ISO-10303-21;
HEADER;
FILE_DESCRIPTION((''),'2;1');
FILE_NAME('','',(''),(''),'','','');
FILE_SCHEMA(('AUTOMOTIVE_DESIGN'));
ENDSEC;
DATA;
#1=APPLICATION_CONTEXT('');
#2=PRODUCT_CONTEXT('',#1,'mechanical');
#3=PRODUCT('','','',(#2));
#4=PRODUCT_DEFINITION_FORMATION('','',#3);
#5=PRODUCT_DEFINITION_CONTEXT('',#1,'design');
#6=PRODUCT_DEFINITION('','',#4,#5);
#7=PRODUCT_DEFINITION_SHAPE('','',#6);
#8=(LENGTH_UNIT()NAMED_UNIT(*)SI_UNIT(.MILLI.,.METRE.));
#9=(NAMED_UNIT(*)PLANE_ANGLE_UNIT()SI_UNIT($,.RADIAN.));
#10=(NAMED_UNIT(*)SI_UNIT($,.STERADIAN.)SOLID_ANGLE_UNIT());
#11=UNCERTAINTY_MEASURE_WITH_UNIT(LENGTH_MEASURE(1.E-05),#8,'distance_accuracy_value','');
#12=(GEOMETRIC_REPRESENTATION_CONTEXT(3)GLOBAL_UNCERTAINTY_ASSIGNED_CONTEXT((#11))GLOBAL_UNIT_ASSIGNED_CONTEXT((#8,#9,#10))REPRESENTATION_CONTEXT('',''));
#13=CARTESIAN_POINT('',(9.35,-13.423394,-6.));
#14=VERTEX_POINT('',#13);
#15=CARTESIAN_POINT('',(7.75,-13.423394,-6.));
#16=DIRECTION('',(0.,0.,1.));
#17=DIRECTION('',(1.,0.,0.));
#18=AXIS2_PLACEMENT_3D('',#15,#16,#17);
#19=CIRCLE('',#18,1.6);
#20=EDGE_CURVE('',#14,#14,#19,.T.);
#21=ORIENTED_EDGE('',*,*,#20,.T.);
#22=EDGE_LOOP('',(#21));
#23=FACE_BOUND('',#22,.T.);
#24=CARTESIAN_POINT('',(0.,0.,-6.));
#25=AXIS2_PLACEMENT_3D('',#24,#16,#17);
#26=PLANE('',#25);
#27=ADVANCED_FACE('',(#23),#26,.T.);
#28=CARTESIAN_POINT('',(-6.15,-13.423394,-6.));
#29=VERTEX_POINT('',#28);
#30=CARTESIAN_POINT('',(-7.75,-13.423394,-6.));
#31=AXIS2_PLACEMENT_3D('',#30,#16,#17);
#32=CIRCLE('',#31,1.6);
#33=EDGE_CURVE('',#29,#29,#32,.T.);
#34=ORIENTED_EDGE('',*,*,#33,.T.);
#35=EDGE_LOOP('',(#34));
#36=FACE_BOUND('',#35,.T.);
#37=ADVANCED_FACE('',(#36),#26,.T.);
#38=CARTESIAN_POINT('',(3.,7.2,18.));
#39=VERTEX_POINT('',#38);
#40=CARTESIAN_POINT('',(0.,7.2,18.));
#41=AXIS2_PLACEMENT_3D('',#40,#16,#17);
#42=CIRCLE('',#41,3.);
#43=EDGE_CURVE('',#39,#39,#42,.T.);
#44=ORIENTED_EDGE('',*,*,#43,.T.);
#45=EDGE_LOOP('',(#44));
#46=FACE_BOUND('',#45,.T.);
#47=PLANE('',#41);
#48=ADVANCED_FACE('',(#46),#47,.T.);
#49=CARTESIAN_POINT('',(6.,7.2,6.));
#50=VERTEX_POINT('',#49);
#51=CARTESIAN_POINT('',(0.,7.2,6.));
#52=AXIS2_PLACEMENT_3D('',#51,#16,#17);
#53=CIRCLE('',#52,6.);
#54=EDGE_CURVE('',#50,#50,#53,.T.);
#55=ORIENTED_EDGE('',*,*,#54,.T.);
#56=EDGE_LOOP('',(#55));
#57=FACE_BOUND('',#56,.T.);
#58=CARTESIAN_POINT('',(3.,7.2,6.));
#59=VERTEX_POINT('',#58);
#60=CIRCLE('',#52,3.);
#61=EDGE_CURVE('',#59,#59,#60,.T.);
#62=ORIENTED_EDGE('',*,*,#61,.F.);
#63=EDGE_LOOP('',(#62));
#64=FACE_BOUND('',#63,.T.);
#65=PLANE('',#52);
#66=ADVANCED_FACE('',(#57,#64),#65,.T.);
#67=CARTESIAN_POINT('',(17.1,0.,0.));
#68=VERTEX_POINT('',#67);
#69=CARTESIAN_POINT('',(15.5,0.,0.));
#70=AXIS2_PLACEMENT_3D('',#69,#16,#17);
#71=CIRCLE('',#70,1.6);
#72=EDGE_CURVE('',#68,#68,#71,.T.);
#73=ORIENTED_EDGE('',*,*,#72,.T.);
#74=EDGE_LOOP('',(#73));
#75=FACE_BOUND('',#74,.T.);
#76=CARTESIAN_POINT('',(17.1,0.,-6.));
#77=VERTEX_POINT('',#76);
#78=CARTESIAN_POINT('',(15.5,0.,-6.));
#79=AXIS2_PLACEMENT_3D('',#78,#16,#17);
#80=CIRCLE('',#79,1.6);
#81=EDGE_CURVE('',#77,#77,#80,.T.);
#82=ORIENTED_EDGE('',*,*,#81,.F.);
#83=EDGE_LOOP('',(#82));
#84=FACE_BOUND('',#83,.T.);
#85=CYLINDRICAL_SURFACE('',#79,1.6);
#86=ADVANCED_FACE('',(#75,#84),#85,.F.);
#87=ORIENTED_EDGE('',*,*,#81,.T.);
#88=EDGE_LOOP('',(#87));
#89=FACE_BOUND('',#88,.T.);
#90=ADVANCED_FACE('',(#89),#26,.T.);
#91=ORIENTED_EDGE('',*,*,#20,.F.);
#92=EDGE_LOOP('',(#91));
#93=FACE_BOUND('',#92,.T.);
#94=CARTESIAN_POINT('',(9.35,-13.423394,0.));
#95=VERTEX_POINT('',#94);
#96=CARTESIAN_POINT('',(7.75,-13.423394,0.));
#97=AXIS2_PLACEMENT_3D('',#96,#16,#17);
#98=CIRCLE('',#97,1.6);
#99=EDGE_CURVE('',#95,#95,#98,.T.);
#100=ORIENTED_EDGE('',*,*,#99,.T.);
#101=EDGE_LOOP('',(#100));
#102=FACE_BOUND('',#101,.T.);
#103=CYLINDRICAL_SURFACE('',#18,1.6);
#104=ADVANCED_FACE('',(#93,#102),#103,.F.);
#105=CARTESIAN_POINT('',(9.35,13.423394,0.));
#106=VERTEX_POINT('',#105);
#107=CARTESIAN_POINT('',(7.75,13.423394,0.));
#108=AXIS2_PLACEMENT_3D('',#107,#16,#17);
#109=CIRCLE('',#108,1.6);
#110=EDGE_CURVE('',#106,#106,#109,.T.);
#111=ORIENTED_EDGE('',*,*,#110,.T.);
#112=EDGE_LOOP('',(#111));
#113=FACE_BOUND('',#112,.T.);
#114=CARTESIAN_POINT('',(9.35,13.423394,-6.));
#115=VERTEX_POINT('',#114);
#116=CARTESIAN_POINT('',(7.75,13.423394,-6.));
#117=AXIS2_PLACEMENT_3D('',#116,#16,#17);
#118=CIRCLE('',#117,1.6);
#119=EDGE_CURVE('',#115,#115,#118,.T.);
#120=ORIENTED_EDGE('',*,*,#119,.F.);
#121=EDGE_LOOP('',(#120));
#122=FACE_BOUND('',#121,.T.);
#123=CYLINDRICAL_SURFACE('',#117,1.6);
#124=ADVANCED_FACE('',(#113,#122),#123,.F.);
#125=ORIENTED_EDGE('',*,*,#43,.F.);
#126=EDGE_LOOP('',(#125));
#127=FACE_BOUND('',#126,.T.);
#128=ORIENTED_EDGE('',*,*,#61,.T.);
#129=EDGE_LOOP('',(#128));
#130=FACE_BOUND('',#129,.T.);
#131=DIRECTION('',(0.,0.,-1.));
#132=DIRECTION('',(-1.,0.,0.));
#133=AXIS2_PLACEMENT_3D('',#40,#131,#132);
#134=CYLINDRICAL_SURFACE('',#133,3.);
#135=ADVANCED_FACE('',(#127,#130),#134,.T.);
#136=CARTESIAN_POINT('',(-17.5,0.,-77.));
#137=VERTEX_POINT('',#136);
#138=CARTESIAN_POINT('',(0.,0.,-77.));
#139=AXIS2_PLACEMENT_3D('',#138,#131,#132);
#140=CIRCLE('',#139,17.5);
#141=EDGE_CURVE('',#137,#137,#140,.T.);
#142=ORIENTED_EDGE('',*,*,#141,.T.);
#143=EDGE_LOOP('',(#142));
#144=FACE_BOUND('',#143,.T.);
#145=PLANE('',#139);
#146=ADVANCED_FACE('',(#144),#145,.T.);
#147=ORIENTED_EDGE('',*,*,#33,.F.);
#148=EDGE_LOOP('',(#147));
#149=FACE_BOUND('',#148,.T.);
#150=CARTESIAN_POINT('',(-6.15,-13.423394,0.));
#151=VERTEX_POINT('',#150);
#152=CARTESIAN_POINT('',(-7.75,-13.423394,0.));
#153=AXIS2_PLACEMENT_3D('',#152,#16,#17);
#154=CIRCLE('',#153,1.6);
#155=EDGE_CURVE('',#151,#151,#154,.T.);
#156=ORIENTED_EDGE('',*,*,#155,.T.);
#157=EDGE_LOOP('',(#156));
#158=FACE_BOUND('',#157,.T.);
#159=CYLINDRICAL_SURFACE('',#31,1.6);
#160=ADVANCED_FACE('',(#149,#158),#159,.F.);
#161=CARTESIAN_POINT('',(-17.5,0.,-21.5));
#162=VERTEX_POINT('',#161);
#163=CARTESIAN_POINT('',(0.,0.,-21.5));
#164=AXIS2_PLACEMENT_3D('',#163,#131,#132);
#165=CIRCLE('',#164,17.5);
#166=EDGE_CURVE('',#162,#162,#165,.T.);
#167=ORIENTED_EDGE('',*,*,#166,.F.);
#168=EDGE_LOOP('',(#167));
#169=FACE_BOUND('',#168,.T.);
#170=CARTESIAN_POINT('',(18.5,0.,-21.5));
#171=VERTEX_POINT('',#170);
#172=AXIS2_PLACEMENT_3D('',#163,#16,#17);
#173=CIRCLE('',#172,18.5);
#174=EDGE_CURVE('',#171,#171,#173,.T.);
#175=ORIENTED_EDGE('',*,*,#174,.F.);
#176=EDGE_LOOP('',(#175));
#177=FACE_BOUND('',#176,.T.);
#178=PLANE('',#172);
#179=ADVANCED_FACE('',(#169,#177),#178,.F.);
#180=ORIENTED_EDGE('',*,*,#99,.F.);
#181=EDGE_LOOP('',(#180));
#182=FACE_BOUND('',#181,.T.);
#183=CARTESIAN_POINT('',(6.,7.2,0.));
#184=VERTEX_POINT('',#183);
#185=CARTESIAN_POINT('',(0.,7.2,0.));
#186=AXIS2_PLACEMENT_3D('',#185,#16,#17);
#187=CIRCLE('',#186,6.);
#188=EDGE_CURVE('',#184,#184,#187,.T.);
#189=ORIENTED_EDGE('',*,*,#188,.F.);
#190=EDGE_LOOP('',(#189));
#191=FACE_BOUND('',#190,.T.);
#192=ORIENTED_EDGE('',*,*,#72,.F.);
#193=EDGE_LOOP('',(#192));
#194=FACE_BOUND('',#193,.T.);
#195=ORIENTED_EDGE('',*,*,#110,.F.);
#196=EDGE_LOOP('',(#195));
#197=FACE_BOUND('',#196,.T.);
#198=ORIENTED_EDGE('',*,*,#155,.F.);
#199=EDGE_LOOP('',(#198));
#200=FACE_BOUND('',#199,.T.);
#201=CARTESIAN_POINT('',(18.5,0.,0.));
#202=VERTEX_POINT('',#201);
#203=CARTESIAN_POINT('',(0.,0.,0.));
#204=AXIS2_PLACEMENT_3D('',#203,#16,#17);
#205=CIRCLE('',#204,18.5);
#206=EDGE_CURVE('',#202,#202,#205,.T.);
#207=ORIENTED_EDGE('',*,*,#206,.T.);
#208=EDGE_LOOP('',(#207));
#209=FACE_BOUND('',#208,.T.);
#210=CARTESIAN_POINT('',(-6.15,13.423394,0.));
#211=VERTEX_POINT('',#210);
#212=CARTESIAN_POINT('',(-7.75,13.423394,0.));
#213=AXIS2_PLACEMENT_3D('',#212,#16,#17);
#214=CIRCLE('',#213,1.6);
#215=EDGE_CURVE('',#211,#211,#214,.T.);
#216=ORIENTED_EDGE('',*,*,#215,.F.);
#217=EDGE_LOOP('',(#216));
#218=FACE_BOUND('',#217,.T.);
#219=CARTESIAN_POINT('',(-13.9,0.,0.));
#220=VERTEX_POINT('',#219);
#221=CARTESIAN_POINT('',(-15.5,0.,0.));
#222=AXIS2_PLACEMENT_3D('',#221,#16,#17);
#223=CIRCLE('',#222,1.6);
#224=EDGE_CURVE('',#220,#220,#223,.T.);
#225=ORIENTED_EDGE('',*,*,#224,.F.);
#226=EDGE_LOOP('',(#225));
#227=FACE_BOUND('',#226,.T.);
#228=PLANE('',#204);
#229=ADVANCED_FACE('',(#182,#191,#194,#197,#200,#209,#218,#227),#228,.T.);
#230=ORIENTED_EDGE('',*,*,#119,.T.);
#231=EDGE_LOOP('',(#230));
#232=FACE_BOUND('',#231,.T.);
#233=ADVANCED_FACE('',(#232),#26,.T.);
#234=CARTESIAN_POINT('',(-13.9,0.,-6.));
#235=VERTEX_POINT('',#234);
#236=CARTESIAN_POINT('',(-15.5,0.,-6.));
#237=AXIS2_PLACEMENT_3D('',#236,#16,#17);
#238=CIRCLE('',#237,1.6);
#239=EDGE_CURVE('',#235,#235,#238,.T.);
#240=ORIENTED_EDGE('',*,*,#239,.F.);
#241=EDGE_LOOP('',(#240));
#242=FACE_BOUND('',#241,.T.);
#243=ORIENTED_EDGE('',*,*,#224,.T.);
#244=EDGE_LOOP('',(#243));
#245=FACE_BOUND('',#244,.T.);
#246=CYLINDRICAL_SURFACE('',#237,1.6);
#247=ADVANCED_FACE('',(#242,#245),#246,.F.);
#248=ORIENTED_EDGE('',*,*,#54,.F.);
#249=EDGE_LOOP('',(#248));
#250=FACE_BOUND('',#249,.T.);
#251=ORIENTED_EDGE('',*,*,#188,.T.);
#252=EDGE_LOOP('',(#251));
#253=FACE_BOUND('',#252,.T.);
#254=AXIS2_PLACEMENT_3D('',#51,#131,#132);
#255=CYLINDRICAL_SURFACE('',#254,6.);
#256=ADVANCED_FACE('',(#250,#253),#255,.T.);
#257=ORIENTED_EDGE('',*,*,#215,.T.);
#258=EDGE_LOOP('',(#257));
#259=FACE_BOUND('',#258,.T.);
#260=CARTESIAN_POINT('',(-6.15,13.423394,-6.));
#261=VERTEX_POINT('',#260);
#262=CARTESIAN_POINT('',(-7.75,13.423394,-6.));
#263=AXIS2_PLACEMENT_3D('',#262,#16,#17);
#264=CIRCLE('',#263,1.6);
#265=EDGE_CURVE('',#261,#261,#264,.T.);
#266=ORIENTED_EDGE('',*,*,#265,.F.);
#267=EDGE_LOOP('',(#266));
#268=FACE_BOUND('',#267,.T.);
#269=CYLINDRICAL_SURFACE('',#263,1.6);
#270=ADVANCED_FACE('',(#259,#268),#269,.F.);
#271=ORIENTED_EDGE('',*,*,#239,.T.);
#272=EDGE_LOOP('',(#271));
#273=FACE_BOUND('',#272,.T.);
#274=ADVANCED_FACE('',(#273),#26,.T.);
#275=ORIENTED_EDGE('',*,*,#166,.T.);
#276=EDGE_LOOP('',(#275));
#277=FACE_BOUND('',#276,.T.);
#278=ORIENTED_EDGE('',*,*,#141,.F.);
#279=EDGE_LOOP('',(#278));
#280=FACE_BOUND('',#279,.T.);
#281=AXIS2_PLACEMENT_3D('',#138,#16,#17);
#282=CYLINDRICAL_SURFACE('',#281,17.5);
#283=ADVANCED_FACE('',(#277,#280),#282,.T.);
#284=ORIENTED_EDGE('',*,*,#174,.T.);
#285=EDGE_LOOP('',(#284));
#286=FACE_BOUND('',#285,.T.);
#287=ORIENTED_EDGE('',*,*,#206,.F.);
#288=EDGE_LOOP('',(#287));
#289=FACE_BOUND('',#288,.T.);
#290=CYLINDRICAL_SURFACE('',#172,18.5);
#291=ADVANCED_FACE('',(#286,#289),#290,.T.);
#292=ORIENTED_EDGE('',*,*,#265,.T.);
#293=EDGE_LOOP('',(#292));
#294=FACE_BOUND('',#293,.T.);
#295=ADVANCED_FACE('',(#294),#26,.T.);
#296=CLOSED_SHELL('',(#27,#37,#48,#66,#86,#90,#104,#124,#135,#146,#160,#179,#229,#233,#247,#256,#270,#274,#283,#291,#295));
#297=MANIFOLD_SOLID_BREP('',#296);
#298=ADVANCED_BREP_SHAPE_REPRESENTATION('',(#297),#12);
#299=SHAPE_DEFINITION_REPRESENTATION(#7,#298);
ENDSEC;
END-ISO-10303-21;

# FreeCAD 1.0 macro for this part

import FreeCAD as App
import Part
import Sketcher

doc = App.newDocument("Part")
params = doc.addObject("Spreadsheet::Sheet", "Params")
for row, (alias, value) in enumerate([
    ("sketch1_diameter", "37 mm"),
    ("pad1_length", "21.5 mm"),
    ("sketch2_diameter", "35 mm"),
    ("pad2_length", "55.5 mm"),
    ("sketch3_diameter", "12 mm"),
    ("pad3_length", "6 mm"),
    ("sketch4_diameter", "6 mm"),
    ("pad4_length", "12 mm"),
    ("sketch5_diameter", "3.2 mm"),
    ("pocket1_length", "6 mm"),
], start=1):
    params.set(f"A{row}", alias)
    params.set(f"B{row}", "=" + value)
    params.setAlias(f"B{row}", alias)

body = doc.addObject("PartDesign::Body", "Body")

# Sketch on XY plane
sketch1 = body.newObject("Sketcher::SketchObject", "Sketch")
sketch1.AttachmentSupport = (doc.getObject("XY_Plane"), [""])
sketch1.MapMode = "FlatFace"
sketch1.addGeometry(Part.Circle(App.Vector(0, 0, 0), App.Vector(0, 0, 1), 18.5), False)
sketch1.addConstraint(Sketcher.Constraint("Coincident", 0, 3, -1, 1))
sketch1.addConstraint(Sketcher.Constraint("Diameter", 0, 37.0))
sketch1.setExpression("Constraints[1]", "Params.sketch1_diameter")
pad1 = body.newObject("PartDesign::Pad", "Pad")
pad1.Profile = sketch1
pad1.setExpression("Length", "Params.pad1_length")
pad1.Reversed = True

# Sketch on XY plane
sketch2 = body.newObject("Sketcher::SketchObject", "Sketch001")
sketch2.AttachmentSupport = (doc.getObject("XY_Plane"), [""])
sketch2.MapMode = "FlatFace"
sketch2.AttachmentOffset = App.Placement(App.Vector(0, 0, -21.5), App.Rotation())
sketch2.addGeometry(Part.Circle(App.Vector(0, 0, 0), App.Vector(0, 0, 1), 17.5), False)
sketch2.addConstraint(Sketcher.Constraint("Coincident", 0, 3, -1, 1))
sketch2.addConstraint(Sketcher.Constraint("Diameter", 0, 35.0))
sketch2.setExpression("Constraints[1]", "Params.sketch2_diameter")
pad2 = body.newObject("PartDesign::Pad", "Pad001")
pad2.Profile = sketch2
pad2.setExpression("Length", "Params.pad2_length")
pad2.Reversed = True

# Sketch on XY plane
sketch3 = body.newObject("Sketcher::SketchObject", "Sketch002")
sketch3.AttachmentSupport = (doc.getObject("XY_Plane"), [""])
sketch3.MapMode = "FlatFace"
sketch3.addGeometry(Part.Circle(App.Vector(0, 7.2, 0), App.Vector(0, 0, 1), 6), False)
sketch3.addConstraint(Sketcher.Constraint("PointOnObject", 0, 3, -2))
sketch3.addConstraint(Sketcher.Constraint("Diameter", 0, 12.0))
sketch3.addConstraint(Sketcher.Constraint("DistanceY", -1, 1, 0, 3, 7.2))
sketch3.setExpression("Constraints[1]", "Params.sketch3_diameter")
pad3 = body.newObject("PartDesign::Pad", "Pad002")
pad3.Profile = sketch3
pad3.setExpression("Length", "Params.pad3_length")

# Sketch on XY plane
sketch4 = body.newObject("Sketcher::SketchObject", "Sketch003")
sketch4.AttachmentSupport = (doc.getObject("XY_Plane"), [""])
sketch4.MapMode = "FlatFace"
sketch4.AttachmentOffset = App.Placement(App.Vector(0, 0, 6), App.Rotation())
sketch4.addGeometry(Part.Circle(App.Vector(0, 7.2, 0), App.Vector(0, 0, 1), 3), False)
sketch4.addConstraint(Sketcher.Constraint("PointOnObject", 0, 3, -2))
sketch4.addConstraint(Sketcher.Constraint("Diameter", 0, 6.0))
sketch4.addConstraint(Sketcher.Constraint("DistanceY", -1, 1, 0, 3, 7.2))
sketch4.setExpression("Constraints[1]", "Params.sketch4_diameter")
pad4 = body.newObject("PartDesign::Pad", "Pad003")
pad4.Profile = sketch4
pad4.setExpression("Length", "Params.pad4_length")

# Sketch on XY plane
sketch5 = body.newObject("Sketcher::SketchObject", "Sketch004")
sketch5.AttachmentSupport = (doc.getObject("XY_Plane"), [""])
sketch5.MapMode = "FlatFace"
sketch5.addGeometry(Part.Circle(App.Vector(-7.75, 13.423394, 0), App.Vector(0, 0, 1), 1.6), False)
sketch5.addGeometry(Part.Circle(App.Vector(7.75, 13.423394, 0), App.Vector(0, 0, 1), 1.6), False)
sketch5.addGeometry(Part.Circle(App.Vector(15.5, 0, 0), App.Vector(0, 0, 1), 1.6), False)
sketch5.addGeometry(Part.Circle(App.Vector(7.75, -13.423394, 0), App.Vector(0, 0, 1), 1.6), False)
sketch5.addGeometry(Part.Circle(App.Vector(-7.75, -13.423394, 0), App.Vector(0, 0, 1), 1.6), False)
sketch5.addGeometry(Part.Circle(App.Vector(-15.5, 0, 0), App.Vector(0, 0, 1), 1.6), False)
sketch5.addConstraint(Sketcher.Constraint("Equal", 0, 1))
sketch5.addConstraint(Sketcher.Constraint("Equal", 1, 2))
sketch5.addConstraint(Sketcher.Constraint("Equal", 2, 3))
sketch5.addConstraint(Sketcher.Constraint("Equal", 3, 4))
sketch5.addConstraint(Sketcher.Constraint("Equal", 4, 5))
sketch5.addConstraint(Sketcher.Constraint("Symmetric", 0, 3, 3, 3, -1, 1))
sketch5.addConstraint(Sketcher.Constraint("Symmetric", 1, 3, 4, 3, -1, 1))
sketch5.addConstraint(Sketcher.Constraint("Symmetric", 2, 3, 5, 3, -1, 1))
sketch5.addConstraint(Sketcher.Constraint("Symmetric", 0, 3, 1, 3, -2))
sketch5.addConstraint(Sketcher.Constraint("PointOnObject", 2, 3, -1))
sketch5.addConstraint(Sketcher.Constraint("Diameter", 0, 3.2))
sketch5.addConstraint(Sketcher.Constraint("DistanceX", 5, 3, 2, 3, 31.0))
sketch5.addConstraint(Sketcher.Constraint("DistanceX", 0, 3, 1, 3, 15.5))
sketch5.addConstraint(Sketcher.Constraint("DistanceY", -1, 1, 0, 3, 13.423394))
sketch5.setExpression("Constraints[10]", "Params.sketch5_diameter")
pocket1 = body.newObject("PartDesign::Pocket", "Pocket")
pocket1.Profile = sketch5
pocket1.setExpression("Length", "Params.pocket1_length")

doc.recompute()
